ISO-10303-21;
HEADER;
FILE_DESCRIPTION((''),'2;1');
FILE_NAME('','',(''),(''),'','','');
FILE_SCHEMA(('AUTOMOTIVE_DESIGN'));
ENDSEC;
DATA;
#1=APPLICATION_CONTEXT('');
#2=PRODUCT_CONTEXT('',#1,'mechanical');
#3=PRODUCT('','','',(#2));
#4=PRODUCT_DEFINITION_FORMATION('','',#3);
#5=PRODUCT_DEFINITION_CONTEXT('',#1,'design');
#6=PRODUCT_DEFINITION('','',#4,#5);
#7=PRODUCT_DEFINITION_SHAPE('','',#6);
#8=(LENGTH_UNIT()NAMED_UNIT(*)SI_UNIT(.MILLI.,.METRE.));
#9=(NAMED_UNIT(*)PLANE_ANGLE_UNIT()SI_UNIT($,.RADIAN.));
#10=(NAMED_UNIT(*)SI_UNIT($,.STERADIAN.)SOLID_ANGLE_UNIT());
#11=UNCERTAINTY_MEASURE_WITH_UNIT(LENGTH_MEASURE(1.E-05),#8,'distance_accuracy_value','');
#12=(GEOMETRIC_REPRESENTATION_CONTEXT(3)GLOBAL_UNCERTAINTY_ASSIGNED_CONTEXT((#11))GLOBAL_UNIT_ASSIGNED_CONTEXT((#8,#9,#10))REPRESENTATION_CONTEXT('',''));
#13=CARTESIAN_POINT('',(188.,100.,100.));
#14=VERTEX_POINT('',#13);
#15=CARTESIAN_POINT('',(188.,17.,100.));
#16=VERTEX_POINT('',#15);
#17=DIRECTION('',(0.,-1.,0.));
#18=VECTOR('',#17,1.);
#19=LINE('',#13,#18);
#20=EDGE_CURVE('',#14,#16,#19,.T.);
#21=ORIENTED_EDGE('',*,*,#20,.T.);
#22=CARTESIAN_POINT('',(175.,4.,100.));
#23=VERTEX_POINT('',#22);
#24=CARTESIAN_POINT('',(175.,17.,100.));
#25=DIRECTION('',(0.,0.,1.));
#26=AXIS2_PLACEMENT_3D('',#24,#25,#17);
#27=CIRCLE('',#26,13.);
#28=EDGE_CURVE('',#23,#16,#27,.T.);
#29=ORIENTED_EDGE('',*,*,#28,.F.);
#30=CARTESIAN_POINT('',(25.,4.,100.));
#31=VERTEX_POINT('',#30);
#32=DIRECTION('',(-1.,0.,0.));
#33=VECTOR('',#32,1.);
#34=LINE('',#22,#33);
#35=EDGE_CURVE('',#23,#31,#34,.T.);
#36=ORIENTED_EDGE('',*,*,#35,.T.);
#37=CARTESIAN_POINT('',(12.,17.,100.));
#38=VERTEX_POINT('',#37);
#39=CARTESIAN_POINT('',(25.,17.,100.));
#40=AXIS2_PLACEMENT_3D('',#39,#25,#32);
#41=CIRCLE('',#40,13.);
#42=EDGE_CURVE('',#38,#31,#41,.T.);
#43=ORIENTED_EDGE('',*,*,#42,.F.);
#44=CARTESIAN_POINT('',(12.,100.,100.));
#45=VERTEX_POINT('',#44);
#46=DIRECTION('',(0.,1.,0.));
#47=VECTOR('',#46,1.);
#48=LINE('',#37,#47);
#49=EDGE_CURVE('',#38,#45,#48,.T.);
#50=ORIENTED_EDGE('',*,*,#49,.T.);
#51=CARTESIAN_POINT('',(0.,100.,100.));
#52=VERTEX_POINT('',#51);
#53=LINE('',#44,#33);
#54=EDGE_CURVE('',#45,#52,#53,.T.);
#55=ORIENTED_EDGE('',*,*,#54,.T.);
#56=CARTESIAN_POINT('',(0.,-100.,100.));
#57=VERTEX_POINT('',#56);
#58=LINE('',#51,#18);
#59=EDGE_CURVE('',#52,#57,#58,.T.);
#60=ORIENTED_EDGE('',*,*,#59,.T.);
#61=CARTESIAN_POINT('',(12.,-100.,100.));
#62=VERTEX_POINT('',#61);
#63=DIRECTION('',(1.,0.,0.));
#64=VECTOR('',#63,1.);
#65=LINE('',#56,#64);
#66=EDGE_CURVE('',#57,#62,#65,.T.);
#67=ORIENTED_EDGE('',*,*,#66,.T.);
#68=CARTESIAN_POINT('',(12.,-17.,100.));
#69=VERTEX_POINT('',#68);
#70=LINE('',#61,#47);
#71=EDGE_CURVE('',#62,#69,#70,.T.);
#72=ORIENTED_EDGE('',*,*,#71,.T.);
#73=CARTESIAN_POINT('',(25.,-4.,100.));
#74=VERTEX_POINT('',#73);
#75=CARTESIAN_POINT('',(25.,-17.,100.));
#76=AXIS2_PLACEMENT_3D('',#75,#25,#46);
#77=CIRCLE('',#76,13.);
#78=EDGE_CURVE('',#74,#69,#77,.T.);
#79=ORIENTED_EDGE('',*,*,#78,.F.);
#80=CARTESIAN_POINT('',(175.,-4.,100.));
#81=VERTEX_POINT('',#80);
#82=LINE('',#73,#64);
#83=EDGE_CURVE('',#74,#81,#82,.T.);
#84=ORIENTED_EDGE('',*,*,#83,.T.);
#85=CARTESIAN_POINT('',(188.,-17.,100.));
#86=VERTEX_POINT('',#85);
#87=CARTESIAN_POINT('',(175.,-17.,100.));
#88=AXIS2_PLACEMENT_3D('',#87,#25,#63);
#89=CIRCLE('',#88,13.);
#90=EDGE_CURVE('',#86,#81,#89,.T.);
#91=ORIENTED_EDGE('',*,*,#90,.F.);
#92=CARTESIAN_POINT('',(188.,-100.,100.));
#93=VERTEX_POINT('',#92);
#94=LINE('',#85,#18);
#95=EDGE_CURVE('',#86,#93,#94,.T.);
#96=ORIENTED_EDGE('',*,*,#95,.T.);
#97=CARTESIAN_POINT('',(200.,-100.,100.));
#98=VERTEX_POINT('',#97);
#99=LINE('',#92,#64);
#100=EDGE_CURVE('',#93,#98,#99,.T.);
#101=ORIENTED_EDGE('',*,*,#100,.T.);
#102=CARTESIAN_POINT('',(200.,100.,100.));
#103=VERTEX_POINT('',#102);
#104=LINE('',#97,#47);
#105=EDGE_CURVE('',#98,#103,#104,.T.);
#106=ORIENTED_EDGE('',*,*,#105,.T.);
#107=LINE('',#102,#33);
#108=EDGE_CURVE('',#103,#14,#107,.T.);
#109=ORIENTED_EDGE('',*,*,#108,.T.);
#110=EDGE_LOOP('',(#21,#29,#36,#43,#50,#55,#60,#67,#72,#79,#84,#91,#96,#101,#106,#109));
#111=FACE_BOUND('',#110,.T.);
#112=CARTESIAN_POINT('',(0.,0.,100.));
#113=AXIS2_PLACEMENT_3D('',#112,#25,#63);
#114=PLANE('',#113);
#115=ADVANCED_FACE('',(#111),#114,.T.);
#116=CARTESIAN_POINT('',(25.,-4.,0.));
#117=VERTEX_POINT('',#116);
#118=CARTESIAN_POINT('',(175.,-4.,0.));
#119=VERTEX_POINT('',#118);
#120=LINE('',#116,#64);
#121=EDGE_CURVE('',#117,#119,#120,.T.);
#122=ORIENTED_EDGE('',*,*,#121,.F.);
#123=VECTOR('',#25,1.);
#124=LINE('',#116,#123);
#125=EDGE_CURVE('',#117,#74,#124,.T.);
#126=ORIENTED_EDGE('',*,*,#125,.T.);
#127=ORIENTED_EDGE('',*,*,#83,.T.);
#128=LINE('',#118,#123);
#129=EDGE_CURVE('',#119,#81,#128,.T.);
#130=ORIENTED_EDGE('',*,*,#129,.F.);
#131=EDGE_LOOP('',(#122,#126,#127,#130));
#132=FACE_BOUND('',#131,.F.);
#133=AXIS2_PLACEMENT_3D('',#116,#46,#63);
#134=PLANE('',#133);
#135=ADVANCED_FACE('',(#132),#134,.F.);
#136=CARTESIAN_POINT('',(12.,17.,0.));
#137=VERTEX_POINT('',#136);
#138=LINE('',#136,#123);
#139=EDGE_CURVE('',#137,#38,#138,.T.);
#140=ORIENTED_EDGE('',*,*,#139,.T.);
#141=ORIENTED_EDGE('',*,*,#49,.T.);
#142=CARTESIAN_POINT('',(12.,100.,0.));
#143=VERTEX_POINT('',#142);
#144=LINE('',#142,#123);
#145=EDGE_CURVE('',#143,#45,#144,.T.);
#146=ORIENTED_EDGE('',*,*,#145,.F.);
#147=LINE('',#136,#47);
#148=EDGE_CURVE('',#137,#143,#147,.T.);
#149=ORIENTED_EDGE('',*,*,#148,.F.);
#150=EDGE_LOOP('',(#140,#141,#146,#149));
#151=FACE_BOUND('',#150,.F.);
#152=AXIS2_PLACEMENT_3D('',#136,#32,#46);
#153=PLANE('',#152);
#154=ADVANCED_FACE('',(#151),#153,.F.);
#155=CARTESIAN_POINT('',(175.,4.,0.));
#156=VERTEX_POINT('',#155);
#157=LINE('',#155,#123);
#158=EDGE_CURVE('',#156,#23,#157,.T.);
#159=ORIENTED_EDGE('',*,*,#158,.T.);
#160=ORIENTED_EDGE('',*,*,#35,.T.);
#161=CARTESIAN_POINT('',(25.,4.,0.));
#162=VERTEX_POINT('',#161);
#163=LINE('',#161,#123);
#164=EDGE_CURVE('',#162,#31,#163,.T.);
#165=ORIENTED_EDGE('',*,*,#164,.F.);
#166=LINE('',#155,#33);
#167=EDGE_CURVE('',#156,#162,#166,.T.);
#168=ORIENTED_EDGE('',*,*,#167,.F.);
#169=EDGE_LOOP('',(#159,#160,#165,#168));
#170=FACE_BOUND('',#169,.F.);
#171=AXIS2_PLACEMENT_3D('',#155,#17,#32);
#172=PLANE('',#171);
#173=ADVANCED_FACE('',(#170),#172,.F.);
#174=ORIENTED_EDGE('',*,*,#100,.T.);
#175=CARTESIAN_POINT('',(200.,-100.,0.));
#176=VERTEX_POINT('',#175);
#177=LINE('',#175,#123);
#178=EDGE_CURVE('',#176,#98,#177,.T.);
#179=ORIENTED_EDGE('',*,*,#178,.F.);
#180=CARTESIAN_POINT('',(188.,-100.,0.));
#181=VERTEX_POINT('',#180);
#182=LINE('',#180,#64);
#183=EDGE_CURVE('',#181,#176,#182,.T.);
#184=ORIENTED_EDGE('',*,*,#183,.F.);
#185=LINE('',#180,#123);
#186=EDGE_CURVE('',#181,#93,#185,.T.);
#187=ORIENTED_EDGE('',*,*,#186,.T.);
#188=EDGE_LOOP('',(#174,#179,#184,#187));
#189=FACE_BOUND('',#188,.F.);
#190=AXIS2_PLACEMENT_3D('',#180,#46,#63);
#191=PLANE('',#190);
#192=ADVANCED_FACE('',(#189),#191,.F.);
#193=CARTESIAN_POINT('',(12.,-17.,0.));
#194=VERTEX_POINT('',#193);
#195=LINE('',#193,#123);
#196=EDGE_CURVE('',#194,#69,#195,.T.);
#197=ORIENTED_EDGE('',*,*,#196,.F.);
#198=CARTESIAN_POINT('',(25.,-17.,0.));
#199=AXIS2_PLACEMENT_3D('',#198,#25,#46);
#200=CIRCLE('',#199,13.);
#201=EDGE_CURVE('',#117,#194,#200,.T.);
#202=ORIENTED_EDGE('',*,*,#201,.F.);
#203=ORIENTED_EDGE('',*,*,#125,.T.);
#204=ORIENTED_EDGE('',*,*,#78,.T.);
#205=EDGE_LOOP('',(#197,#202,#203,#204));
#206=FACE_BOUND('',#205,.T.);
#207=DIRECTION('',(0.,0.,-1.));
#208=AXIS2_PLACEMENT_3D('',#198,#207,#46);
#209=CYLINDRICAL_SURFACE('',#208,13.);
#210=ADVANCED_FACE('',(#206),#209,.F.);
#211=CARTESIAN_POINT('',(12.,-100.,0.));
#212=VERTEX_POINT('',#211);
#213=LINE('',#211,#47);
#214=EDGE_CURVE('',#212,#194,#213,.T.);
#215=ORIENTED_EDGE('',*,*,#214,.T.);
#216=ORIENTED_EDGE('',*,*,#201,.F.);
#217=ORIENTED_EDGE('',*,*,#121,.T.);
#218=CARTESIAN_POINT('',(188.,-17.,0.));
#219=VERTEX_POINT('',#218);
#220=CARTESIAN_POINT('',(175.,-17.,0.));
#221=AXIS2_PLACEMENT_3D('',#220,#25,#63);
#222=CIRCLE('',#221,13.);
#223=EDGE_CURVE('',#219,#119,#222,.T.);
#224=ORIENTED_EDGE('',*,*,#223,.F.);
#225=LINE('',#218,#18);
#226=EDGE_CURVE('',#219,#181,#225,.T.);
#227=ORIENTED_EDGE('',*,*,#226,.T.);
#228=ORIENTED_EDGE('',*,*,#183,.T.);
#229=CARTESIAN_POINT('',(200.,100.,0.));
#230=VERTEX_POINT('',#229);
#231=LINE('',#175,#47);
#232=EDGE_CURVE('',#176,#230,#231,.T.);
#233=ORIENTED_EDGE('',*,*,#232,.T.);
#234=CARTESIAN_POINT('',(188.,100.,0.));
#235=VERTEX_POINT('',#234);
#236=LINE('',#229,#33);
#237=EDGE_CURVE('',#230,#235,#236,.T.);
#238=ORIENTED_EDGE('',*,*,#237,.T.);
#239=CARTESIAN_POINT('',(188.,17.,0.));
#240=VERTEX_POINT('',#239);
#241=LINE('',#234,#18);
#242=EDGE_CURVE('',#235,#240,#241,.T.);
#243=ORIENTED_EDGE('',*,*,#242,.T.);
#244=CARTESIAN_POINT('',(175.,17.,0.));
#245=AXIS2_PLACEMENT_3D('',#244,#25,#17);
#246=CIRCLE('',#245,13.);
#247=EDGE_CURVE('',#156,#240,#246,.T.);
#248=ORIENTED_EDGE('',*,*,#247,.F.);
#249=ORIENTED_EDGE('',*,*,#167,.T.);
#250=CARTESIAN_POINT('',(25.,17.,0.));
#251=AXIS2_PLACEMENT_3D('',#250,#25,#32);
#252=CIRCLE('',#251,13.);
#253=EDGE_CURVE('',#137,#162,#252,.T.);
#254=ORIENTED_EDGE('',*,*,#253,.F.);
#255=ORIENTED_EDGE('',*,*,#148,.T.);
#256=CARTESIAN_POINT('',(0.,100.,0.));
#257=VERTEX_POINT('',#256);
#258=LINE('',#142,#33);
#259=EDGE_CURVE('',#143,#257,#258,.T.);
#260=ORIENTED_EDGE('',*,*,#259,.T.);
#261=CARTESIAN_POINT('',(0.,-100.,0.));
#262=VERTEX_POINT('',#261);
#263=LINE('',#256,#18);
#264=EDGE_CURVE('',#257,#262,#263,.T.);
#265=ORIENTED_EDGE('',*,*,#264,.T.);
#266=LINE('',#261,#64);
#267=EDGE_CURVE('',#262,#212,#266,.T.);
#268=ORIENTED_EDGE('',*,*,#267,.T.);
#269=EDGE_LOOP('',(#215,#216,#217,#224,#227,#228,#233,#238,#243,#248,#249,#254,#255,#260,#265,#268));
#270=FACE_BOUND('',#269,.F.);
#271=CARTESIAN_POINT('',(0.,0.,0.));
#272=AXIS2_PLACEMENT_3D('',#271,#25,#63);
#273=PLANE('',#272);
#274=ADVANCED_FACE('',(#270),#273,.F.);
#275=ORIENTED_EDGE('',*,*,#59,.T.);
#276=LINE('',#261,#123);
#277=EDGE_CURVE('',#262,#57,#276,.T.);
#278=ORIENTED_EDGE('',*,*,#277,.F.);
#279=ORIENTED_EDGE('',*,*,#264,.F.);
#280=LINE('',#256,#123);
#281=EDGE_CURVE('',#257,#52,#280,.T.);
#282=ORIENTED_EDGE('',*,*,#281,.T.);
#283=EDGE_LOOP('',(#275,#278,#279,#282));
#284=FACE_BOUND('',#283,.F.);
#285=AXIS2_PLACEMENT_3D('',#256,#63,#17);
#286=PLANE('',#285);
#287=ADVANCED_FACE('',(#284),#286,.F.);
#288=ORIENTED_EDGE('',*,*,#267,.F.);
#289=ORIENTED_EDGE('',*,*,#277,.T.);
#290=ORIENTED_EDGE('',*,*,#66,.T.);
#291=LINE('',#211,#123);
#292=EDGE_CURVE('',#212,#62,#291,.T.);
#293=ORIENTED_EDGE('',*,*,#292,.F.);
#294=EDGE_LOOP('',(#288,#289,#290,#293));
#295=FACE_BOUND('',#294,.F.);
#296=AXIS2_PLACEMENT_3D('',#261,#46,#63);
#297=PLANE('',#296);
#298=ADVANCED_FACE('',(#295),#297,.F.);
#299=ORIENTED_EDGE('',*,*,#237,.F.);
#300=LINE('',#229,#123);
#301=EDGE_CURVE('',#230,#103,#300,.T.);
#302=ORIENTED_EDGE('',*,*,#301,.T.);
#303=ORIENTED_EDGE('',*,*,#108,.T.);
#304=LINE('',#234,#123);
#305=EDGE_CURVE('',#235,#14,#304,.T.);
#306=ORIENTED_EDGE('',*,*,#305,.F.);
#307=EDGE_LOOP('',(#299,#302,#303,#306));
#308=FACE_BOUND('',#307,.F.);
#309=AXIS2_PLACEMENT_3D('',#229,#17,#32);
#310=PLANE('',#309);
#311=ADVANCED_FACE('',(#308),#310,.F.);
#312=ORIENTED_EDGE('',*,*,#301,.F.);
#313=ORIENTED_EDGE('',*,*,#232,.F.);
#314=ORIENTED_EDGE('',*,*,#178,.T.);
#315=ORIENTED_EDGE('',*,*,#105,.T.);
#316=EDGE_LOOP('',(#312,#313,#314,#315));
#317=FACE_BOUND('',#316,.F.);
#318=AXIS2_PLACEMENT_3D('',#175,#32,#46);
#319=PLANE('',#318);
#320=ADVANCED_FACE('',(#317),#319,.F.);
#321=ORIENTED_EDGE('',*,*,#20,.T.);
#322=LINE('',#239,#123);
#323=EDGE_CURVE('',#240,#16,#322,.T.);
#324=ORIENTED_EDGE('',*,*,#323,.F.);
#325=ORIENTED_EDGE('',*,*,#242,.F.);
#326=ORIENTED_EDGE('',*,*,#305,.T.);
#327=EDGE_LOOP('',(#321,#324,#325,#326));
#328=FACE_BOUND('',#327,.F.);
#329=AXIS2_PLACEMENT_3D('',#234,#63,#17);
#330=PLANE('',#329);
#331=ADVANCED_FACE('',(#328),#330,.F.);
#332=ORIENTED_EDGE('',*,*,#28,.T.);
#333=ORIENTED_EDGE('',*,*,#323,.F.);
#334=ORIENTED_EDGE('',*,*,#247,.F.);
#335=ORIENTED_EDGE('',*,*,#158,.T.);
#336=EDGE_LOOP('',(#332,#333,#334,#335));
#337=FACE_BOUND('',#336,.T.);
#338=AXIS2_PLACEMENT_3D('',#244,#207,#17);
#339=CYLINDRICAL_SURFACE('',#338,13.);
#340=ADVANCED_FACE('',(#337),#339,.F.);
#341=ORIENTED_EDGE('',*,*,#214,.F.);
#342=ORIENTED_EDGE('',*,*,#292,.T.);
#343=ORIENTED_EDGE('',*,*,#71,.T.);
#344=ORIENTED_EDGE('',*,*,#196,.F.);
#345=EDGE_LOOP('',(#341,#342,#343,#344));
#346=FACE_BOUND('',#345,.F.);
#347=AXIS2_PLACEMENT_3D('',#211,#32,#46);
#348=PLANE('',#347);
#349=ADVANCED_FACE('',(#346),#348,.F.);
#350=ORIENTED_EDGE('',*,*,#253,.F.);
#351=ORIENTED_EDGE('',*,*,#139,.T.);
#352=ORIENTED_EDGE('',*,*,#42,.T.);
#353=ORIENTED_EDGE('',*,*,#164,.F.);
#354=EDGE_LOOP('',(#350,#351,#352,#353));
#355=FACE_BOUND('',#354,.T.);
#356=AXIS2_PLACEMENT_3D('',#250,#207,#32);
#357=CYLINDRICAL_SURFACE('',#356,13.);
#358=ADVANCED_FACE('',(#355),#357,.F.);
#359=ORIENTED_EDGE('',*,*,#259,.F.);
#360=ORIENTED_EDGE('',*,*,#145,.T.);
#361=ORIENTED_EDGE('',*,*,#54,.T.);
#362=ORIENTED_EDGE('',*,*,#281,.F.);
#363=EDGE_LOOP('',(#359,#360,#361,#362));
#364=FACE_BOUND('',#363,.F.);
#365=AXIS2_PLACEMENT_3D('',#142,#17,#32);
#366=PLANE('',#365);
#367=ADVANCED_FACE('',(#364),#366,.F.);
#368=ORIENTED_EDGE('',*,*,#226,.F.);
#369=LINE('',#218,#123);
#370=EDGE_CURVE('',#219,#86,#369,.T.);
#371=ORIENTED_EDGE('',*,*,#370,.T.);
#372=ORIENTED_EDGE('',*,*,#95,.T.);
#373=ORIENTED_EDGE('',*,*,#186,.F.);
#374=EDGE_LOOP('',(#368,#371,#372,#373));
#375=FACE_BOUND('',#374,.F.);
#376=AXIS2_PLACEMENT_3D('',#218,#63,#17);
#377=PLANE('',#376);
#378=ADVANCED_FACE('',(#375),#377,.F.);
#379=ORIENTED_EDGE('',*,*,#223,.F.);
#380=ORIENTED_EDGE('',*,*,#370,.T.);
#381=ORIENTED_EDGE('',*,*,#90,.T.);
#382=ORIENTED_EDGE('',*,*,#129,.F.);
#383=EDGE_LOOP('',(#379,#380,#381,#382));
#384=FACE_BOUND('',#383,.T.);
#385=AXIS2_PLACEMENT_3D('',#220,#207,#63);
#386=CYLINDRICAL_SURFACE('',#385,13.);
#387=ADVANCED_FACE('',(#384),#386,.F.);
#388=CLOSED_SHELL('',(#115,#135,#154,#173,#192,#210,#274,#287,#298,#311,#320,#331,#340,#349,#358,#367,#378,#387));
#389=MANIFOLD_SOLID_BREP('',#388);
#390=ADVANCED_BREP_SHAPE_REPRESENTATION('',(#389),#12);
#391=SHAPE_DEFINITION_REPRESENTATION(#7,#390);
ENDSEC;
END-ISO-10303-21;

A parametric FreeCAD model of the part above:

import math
import FreeCAD as App
import Part
import Sketcher

V = App.Vector

doc = App.newDocument("Part")
params = doc.addObject("Spreadsheet::Sheet", "Params")
for row, (alias, value) in enumerate([
    ("sketch1_radius", "13 mm"),
    ("sketch1_width", "12 mm"),
    ("sketch1_width2", "150 mm"),
    ("sketch1_height", "200 mm"),
    ("sketch1_height2", "83 mm"),
    ("pad1_length", "100 mm"),
], start=1):
    params.set(f"A{row}", alias)
    params.set(f"B{row}", "=" + value)
    params.setAlias(f"B{row}", alias)

body = doc.addObject("PartDesign::Body", "Body")

# Sketch on XY plane
sketch1 = body.newObject("Sketcher::SketchObject", "Sketch")
sketch1.AttachmentSupport = (doc.getObject("XY_Plane"), [""])
sketch1.MapMode = "FlatFace"
sketch1.addGeometry(Part.LineSegment(V(12, 100, 0), V(0, 100, 0)), False)
sketch1.addGeometry(Part.LineSegment(V(0, 100, 0), V(0, -100, 0)), False)
sketch1.addGeometry(Part.LineSegment(V(0, -100, 0), V(12, -100, 0)), False)
sketch1.addGeometry(Part.LineSegment(V(12, -100, 0), V(12, -17, 0)), False)
sketch1.addGeometry(Part.ArcOfCircle(Part.Circle(V(25, -17, 0), V(0, 0, 1), 13), math.radians(90), math.radians(180)), False)
sketch1.addGeometry(Part.LineSegment(V(25, -4, 0), V(175, -4, 0)), False)
sketch1.addGeometry(Part.ArcOfCircle(Part.Circle(V(175, -17, 0), V(0, 0, 1), 13), math.radians(0), math.radians(90)), False)
sketch1.addGeometry(Part.LineSegment(V(188, -17, 0), V(188, -100, 0)), False)
sketch1.addGeometry(Part.LineSegment(V(188, -100, 0), V(200, -100, 0)), False)
sketch1.addGeometry(Part.LineSegment(V(200, -100, 0), V(200, 100, 0)), False)
sketch1.addGeometry(Part.LineSegment(V(200, 100, 0), V(188, 100, 0)), False)
sketch1.addGeometry(Part.LineSegment(V(188, 100, 0), V(188, 17, 0)), False)
sketch1.addGeometry(Part.ArcOfCircle(Part.Circle(V(175, 17, 0), V(0, 0, 1), 13), math.radians(-90), math.radians(0)), False)
sketch1.addGeometry(Part.LineSegment(V(175, 4, 0), V(25, 4, 0)), False)
sketch1.addGeometry(Part.ArcOfCircle(Part.Circle(V(25, 17, 0), V(0, 0, 1), 13), math.radians(180), math.radians(270)), False)
sketch1.addGeometry(Part.LineSegment(V(12, 17, 0), V(12, 100, 0)), False)
sketch1.addConstraint(Sketcher.Constraint("Coincident", 0, 2, 1, 1))
sketch1.addConstraint(Sketcher.Constraint("Coincident", 1, 2, 2, 1))
sketch1.addConstraint(Sketcher.Constraint("Coincident", 2, 2, 3, 1))
sketch1.addConstraint(Sketcher.Constraint("Tangent", 3, 2, 4, 2))
sketch1.addConstraint(Sketcher.Constraint("Tangent", 4, 1, 5, 1))
sketch1.addConstraint(Sketcher.Constraint("Tangent", 5, 2, 6, 2))
sketch1.addConstraint(Sketcher.Constraint("Tangent", 6, 1, 7, 1))
sketch1.addConstraint(Sketcher.Constraint("Coincident", 7, 2, 8, 1))
sketch1.addConstraint(Sketcher.Constraint("Coincident", 8, 2, 9, 1))
sketch1.addConstraint(Sketcher.Constraint("Coincident", 9, 2, 10, 1))
sketch1.addConstraint(Sketcher.Constraint("Coincident", 10, 2, 11, 1))
sketch1.addConstraint(Sketcher.Constraint("Tangent", 11, 2, 12, 2))
sketch1.addConstraint(Sketcher.Constraint("Tangent", 12, 1, 13, 1))
sketch1.addConstraint(Sketcher.Constraint("Tangent", 13, 2, 14, 2))
sketch1.addConstraint(Sketcher.Constraint("Tangent", 14, 1, 15, 1))
sketch1.addConstraint(Sketcher.Constraint("Coincident", 15, 2, 0, 1))
sketch1.addConstraint(Sketcher.Constraint("Horizontal", 0))
sketch1.addConstraint(Sketcher.Constraint("Vertical", 1))
sketch1.addConstraint(Sketcher.Constraint("Horizontal", 2))
sketch1.addConstraint(Sketcher.Constraint("Vertical", 3))
sketch1.addConstraint(Sketcher.Constraint("Horizontal", 5))
sketch1.addConstraint(Sketcher.Constraint("Vertical", 7))
sketch1.addConstraint(Sketcher.Constraint("Horizontal", 8))
sketch1.addConstraint(Sketcher.Constraint("Vertical", 9))
sketch1.addConstraint(Sketcher.Constraint("Horizontal", 10))
sketch1.addConstraint(Sketcher.Constraint("Vertical", 11))
sketch1.addConstraint(Sketcher.Constraint("Horizontal", 13))
sketch1.addConstraint(Sketcher.Constraint("Vertical", 15))
sketch1.addConstraint(Sketcher.Constraint("Equal", 4, 6))
sketch1.addConstraint(Sketcher.Constraint("Equal", 6, 12))
sketch1.addConstraint(Sketcher.Constraint("Equal", 12, 14))
sketch1.addConstraint(Sketcher.Constraint("Symmetric", 0, 2, 1, 2, -1, 1))
sketch1.addConstraint(Sketcher.Constraint("Symmetric", 6, 3, 12, 3, -1))
sketch1.addConstraint(Sketcher.Constraint("Horizontal", 2, 2, 7, 2))
sketch1.addConstraint(Sketcher.Constraint("Horizontal", 0, 2, 9, 2))
sketch1.addConstraint(Sketcher.Constraint("Vertical", 4, 3, 14, 3))
sketch1.addConstraint(Sketcher.Constraint("Equal", 2, 8))
sketch1.addConstraint(Sketcher.Constraint("Radius", 4, 13.0))
sketch1.addConstraint(Sketcher.Constraint("DistanceX", 0, 2, 0, 1, 12.0))
sketch1.addConstraint(Sketcher.Constraint("DistanceX", 5, 1, 5, 2, 150.0))
sketch1.addConstraint(Sketcher.Constraint("DistanceY", 1, 2, 1, 1, 200.0))
sketch1.addConstraint(Sketcher.Constraint("DistanceY", 3, 1, 3, 2, 83.0))
sketch1.setExpression("Constraints[37]", "Params.sketch1_radius")
sketch1.setExpression("Constraints[38]", "Params.sketch1_width")
sketch1.setExpression("Constraints[39]", "Params.sketch1_width2")
sketch1.setExpression("Constraints[40]", "Params.sketch1_height")
sketch1.setExpression("Constraints[41]", "Params.sketch1_height2")
pad1 = body.newObject("PartDesign::Pad", "Pad")
pad1.Profile = sketch1
pad1.setExpression("Length", "Params.pad1_length")

doc.recompute()
